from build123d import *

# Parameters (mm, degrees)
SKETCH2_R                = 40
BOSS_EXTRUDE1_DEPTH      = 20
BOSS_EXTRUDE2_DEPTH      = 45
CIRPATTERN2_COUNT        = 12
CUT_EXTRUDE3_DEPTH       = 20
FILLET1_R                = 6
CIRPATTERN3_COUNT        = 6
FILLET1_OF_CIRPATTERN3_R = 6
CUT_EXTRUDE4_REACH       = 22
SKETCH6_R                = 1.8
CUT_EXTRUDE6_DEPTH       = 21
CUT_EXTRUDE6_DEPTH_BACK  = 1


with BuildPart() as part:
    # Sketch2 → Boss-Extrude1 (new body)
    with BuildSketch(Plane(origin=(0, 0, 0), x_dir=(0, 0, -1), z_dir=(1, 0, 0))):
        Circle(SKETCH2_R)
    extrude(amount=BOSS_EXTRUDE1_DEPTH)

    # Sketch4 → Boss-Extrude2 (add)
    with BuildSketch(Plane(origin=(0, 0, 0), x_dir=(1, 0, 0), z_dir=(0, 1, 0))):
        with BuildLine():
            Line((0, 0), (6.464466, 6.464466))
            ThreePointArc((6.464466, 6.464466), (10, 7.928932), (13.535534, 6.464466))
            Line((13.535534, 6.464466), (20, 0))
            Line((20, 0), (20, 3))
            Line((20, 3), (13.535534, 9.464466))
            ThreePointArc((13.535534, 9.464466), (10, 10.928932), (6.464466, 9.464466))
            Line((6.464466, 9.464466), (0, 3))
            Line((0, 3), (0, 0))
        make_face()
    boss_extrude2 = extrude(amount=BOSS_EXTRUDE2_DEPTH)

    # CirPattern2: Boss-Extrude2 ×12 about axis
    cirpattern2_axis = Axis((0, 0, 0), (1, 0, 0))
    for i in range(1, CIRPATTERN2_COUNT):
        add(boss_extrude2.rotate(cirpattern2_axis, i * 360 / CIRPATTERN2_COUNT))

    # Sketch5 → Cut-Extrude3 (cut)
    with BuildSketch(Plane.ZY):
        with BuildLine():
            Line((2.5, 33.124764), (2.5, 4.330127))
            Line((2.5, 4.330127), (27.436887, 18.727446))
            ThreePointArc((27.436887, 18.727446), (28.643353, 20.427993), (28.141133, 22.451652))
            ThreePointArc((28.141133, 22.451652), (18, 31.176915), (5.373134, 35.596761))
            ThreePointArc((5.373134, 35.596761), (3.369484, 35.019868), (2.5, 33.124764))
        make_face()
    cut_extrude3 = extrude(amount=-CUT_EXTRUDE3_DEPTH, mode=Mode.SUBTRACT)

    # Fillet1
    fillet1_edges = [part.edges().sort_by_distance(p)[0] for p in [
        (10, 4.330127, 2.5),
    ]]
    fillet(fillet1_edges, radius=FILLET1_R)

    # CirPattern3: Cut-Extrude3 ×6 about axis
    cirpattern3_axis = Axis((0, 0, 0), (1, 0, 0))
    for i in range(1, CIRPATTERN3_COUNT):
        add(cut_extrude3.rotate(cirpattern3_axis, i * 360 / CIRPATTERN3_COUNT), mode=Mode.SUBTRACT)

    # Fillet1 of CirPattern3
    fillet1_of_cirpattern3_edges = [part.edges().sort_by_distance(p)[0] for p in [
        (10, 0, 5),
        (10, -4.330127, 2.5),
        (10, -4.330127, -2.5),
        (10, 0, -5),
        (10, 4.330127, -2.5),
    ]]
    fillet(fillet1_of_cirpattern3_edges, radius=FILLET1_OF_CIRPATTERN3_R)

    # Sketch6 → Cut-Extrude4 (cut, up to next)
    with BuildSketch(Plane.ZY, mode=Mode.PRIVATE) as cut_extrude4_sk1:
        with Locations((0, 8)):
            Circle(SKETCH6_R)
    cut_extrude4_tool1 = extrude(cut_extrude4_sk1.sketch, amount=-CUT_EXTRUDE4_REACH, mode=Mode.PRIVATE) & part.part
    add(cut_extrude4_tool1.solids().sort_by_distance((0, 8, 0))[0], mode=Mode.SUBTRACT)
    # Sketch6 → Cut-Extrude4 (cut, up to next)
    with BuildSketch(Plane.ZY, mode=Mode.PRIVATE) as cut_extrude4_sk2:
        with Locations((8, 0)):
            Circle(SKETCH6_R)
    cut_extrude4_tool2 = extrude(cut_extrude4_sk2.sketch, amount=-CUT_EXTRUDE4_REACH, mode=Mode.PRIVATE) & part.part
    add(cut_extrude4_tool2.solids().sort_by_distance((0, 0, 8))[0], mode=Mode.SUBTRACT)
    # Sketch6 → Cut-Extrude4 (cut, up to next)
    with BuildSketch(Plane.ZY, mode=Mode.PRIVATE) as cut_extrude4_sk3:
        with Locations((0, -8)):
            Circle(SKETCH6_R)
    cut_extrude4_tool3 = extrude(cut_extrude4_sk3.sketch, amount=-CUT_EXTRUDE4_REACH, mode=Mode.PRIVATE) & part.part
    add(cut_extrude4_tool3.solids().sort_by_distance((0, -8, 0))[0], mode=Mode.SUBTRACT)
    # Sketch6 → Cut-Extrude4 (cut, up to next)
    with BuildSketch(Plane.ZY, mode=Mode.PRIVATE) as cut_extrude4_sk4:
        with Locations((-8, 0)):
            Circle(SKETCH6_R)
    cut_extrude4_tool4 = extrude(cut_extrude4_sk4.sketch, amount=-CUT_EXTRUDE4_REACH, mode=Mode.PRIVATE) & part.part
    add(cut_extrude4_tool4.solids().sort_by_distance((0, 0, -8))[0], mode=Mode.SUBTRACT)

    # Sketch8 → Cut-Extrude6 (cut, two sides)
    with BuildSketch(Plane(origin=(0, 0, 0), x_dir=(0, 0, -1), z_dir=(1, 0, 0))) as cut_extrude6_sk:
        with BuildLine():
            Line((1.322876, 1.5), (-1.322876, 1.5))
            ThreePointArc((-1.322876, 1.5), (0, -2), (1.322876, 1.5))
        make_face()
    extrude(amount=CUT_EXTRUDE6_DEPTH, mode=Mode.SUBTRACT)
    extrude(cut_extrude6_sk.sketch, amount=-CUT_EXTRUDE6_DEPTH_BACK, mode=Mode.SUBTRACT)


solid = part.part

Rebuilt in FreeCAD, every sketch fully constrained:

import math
import FreeCAD as App
import Part
import Sketcher

V = App.Vector
Q = App.Units.Quantity


def edges_at(feature, points):
    """Names of the edges that pass closest to the given points."""
    edges = feature.Shape.Edges
    near = lambda p: min(range(len(edges)), key=lambda i: edges[i].distToShape(Part.Vertex(*p))[0])
    return sorted({f"Edge{near(p) + 1}" for p in points})

doc = App.newDocument("Part")
body = doc.addObject("PartDesign::Body", "Body")

sketch1 = body.newObject("Sketcher::SketchObject", "Sketch")
sketch1.AttachmentSupport = (doc.getObject("YZ_Plane"), [""])
sketch1.MapMode = "FlatFace"
sketch1.addGeometry(Part.Circle(V(0, 0, 0), V(0, 0, 1), 40), False)
sketch1.addConstraint(Sketcher.Constraint("Coincident", 0, 3, -1, 1))
sketch1.addConstraint(Sketcher.Constraint("Diameter", 0, Q("80 mm")))
pad1 = body.newObject("PartDesign::Pad", "Pad")
pad1.Profile = sketch1
pad1.Length = 20

sketch2 = body.newObject("Sketcher::SketchObject", "Sketch001")
sketch2.AttachmentSupport = (doc.getObject("XZ_Plane"), [""])
sketch2.MapMode = "FlatFace"
sketch2.addGeometry(Part.LineSegment(V(0, 0, 0), V(6.464466, -6.464466, 0)), False)
sketch2.addGeometry(Part.ArcOfCircle(Part.Circle(V(10, -2.928932, 0), V(0, 0, 1), 5), math.radians(-134.999996), math.radians(-45.000004)), False)
sketch2.addGeometry(Part.LineSegment(V(13.535534, -6.464466, 0), V(20, 0, 0)), False)
sketch2.addGeometry(Part.LineSegment(V(20, 0, 0), V(20, -3, 0)), False)
sketch2.addGeometry(Part.LineSegment(V(20, -3, 0), V(13.535534, -9.464466, 0)), False)
sketch2.addGeometry(Part.ArcOfCircle(Part.Circle(V(10, -5.928932, 0), V(0, 0, 1), 5), math.radians(-134.999996), math.radians(-45.000004)), False)
sketch2.addGeometry(Part.LineSegment(V(6.464466, -9.464466, 0), V(0, -3, 0)), False)
sketch2.addGeometry(Part.LineSegment(V(0, -3, 0), V(0, 0, 0)), False)
sketch2.addConstraint(Sketcher.Constraint("Tangent", 0, 2, 1, 1))
sketch2.addConstraint(Sketcher.Constraint("Tangent", 1, 2, 2, 1))
sketch2.addConstraint(Sketcher.Constraint("Coincident", 2, 2, 3, 1))
sketch2.addConstraint(Sketcher.Constraint("Coincident", 3, 2, 4, 1))
sketch2.addConstraint(Sketcher.Constraint("Tangent", 4, 2, 5, 2))
sketch2.addConstraint(Sketcher.Constraint("Tangent", 5, 1, 6, 1))
sketch2.addConstraint(Sketcher.Constraint("Coincident", 6, 2, 7, 1))
sketch2.addConstraint(Sketcher.Constraint("Coincident", 7, 2, 0, 1))
sketch2.addConstraint(Sketcher.Constraint("Vertical", 3))
sketch2.addConstraint(Sketcher.Constraint("Vertical", 7))
sketch2.addConstraint(Sketcher.Constraint("Coincident", 7, 2, -1, 1))
sketch2.addConstraint(Sketcher.Constraint("Equal", 1, 5))
sketch2.addConstraint(Sketcher.Constraint("PointOnObject", 2, 2, -1))
sketch2.addConstraint(Sketcher.Constraint("Perpendicular", 0, 2))
sketch2.addConstraint(Sketcher.Constraint("Parallel", 2, 4))
sketch2.addConstraint(Sketcher.Constraint("Perpendicular", 4, 6))
sketch2.addConstraint(Sketcher.Constraint("Horizontal", 0, 2, 1, 2))
sketch2.addConstraint(Sketcher.Constraint("Horizontal", 3, 2, 6, 2))
sketch2.addConstraint(Sketcher.Constraint("Radius", 1, Q("5 mm")))
sketch2.addConstraint(Sketcher.Constraint("DistanceY", 3, 2, 3, 1, Q("3 mm")))
sketch2.addConstraint(Sketcher.Constraint("DistanceX", -1, 1, 1, 3, Q("10 mm")))
pad2 = body.newObject("PartDesign::Pad", "Pad001")
pad2.Profile = sketch2
pad2.Length = 45
pad2.Reversed = True
doc.recompute()

polarpattern = body.newObject("PartDesign::PolarPattern", "PolarPattern")
polarpattern.Originals = [pad2]
polarpattern.Axis = (doc.getObject("X_Axis"), [""])
polarpattern.Angle = 360
polarpattern.Occurrences = 12
body.Tip = polarpattern

sketch3 = body.newObject("Sketcher::SketchObject", "Sketch002")
sketch3.AttachmentSupport = (doc.getObject("YZ_Plane"), [""])
sketch3.MapMode = "FlatFace"
sketch3.addGeometry(Part.LineSegment(V(33.124764, 2.5, 0), V(4.330127, 2.5, 0)), False)
sketch3.addGeometry(Part.LineSegment(V(4.330127, 2.5, 0), V(18.727446, 27.436887, 0)), False)
sketch3.addGeometry(Part.ArcOfCircle(Part.Circle(V(20.89251, 26.186887, 0), V(0, 0, 1), 2.5), math.radians(51.416339), math.radians(150)), False)
sketch3.addGeometry(Part.ArcOfCircle(Part.Circle(V(0.000004, 0.000004, 0), V(0, 0, 1), 35.999995), math.radians(8.583676), math.radians(51.416319)), False)
sketch3.addGeometry(Part.ArcOfCircle(Part.Circle(V(33.124765, 4.999999, 0), V(0, 0, 1), 2.499999), math.radians(-90.000022), math.radians(8.583704)), False)
sketch3.addConstraint(Sketcher.Constraint("Coincident", 0, 2, 1, 1))
sketch3.addConstraint(Sketcher.Constraint("Tangent", 1, 2, 2, 2))
sketch3.addConstraint(Sketcher.Constraint("Tangent", 2, 1, 3, 2))
sketch3.addConstraint(Sketcher.Constraint("Tangent", 3, 1, 4, 2))
sketch3.addConstraint(Sketcher.Constraint("Tangent", 4, 1, 0, 1))
sketch3.addConstraint(Sketcher.Constraint("Horizontal", 0))
sketch3.addConstraint(Sketcher.Constraint("Coincident", 3, 3, -1, 1))
sketch3.addConstraint(Sketcher.Constraint("Equal", 2, 4))
sketch3.addConstraint(Sketcher.Constraint("Radius", 2, Q("2.5 mm")))
sketch3.addConstraint(Sketcher.Constraint("Angle", 1, Q("59.999999 deg")))
sketch3.addConstraint(Sketcher.Constraint("DistanceY", -1, 1, 4, 3, Q("4.999999 mm")))
sketch3.addConstraint(Sketcher.Constraint("Radius", 3, Q("35.999995 mm")))
sketch3.addConstraint(Sketcher.Constraint("DistanceY", 3, 1, 2, 1, Q("22.767999 mm")))
pocket1 = body.newObject("PartDesign::Pocket", "Pocket")
pocket1.Profile = sketch3
pocket1.Length = 20
pocket1.Reversed = True
doc.recompute()

fillet = body.newObject("PartDesign::Fillet", "Fillet")
fillet.Base = (pocket1, edges_at(pocket1, [(10, 4.33, 2.5)]))
fillet.Radius = 6
doc.recompute()

polarpattern2 = body.newObject("PartDesign::PolarPattern", "PolarPattern001")
polarpattern2.Originals = [pocket1]
polarpattern2.Axis = (doc.getObject("X_Axis"), [""])
polarpattern2.Angle = 360
polarpattern2.Occurrences = 6
body.Tip = polarpattern2
doc.recompute()

fillet2 = body.newObject("PartDesign::Fillet", "Fillet001")
fillet2.Base = (polarpattern2, edges_at(polarpattern2, [
    (10, 0, 5),
    (10, -4.33, 2.5),
    (10, -4.33, -2.5),
    (10, 0, -5),
    (10, 4.33, -2.5),
]))
fillet2.Radius = 6

sketch4 = body.newObject("Sketcher::SketchObject", "Sketch003")
sketch4.AttachmentSupport = (doc.getObject("YZ_Plane"), [""])
sketch4.MapMode = "FlatFace"
sketch4.addGeometry(Part.Circle(V(8, 0, 0), V(0, 0, 1), 1.8), False)
sketch4.addConstraint(Sketcher.Constraint("PointOnObject", 0, 3, -1))
sketch4.addConstraint(Sketcher.Constraint("Diameter", 0, Q("3.6 mm")))
sketch4.addConstraint(Sketcher.Constraint("DistanceX", -1, 1, 0, 3, Q("8 mm")))
pocket2 = body.newObject("PartDesign::Pocket", "Pocket001")
pocket2.Profile = sketch4
pocket2.Type = "UpToFirst"
pocket2.Reversed = True

sketch5 = body.newObject("Sketcher::SketchObject", "Sketch004")
sketch5.AttachmentSupport = (doc.getObject("YZ_Plane"), [""])
sketch5.MapMode = "FlatFace"
sketch5.addGeometry(Part.Circle(V(0, 8, 0), V(0, 0, 1), 1.8), False)
sketch5.addConstraint(Sketcher.Constraint("PointOnObject", 0, 3, -2))
sketch5.addConstraint(Sketcher.Constraint("Diameter", 0, Q("3.6 mm")))
sketch5.addConstraint(Sketcher.Constraint("DistanceY", -1, 1, 0, 3, Q("8 mm")))
pocket3 = body.newObject("PartDesign::Pocket", "Pocket002")
pocket3.Profile = sketch5
pocket3.Type = "UpToFirst"
pocket3.Reversed = True

sketch6 = body.newObject("Sketcher::SketchObject", "Sketch005")
sketch6.AttachmentSupport = (doc.getObject("YZ_Plane"), [""])
sketch6.MapMode = "FlatFace"
sketch6.addGeometry(Part.Circle(V(-8, 0, 0), V(0, 0, 1), 1.8), False)
sketch6.addConstraint(Sketcher.Constraint("PointOnObject", 0, 3, -1))
sketch6.addConstraint(Sketcher.Constraint("Diameter", 0, Q("3.6 mm")))
sketch6.addConstraint(Sketcher.Constraint("DistanceX", 0, 3, -1, 1, Q("8 mm")))
pocket4 = body.newObject("PartDesign::Pocket", "Pocket003")
pocket4.Profile = sketch6
pocket4.Type = "UpToFirst"
pocket4.Reversed = True

sketch7 = body.newObject("Sketcher::SketchObject", "Sketch006")
sketch7.AttachmentSupport = (doc.getObject("YZ_Plane"), [""])
sketch7.MapMode = "FlatFace"
sketch7.addGeometry(Part.Circle(V(0, -8, 0), V(0, 0, 1), 1.8), False)
sketch7.addConstraint(Sketcher.Constraint("PointOnObject", 0, 3, -2))
sketch7.addConstraint(Sketcher.Constraint("Diameter", 0, Q("3.6 mm")))
sketch7.addConstraint(Sketcher.Constraint("DistanceY", 0, 3, -1, 1, Q("8 mm")))
pocket5 = body.newObject("PartDesign::Pocket", "Pocket004")
pocket5.Profile = sketch7
pocket5.Type = "UpToFirst"
pocket5.Reversed = True

sketch8 = body.newObject("Sketcher::SketchObject", "Sketch007")
sketch8.AttachmentSupport = (doc.getObject("YZ_Plane"), [""])
sketch8.MapMode = "FlatFace"
sketch8.addGeometry(Part.LineSegment(V(1.5, -1.322876, 0), V(1.5, 1.322876, 0)), False)
sketch8.addGeometry(Part.ArcOfCircle(Part.Circle(V(0, 0, 0), V(0, 0, 1), 2), math.radians(41.409632), math.radians(318.590368)), False)
sketch8.addConstraint(Sketcher.Constraint("Coincident", 0, 1, 1, 2))
sketch8.addConstraint(Sketcher.Constraint("Coincident", 1, 1, 0, 2))
sketch8.addConstraint(Sketcher.Constraint("Vertical", 0))
sketch8.addConstraint(Sketcher.Constraint("Coincident", 1, 3, -1, 1))
sketch8.addConstraint(Sketcher.Constraint("Radius", 1, Q("2 mm")))
sketch8.addConstraint(Sketcher.Constraint("DistanceX", -1, 1, 0, 1, Q("1.5 mm")))
pocket6 = body.newObject("PartDesign::Pocket", "Pocket005")
pocket6.Profile = sketch8
pocket6.Type = "ThroughAll"
pocket6.Midplane = True

doc.recompute()
